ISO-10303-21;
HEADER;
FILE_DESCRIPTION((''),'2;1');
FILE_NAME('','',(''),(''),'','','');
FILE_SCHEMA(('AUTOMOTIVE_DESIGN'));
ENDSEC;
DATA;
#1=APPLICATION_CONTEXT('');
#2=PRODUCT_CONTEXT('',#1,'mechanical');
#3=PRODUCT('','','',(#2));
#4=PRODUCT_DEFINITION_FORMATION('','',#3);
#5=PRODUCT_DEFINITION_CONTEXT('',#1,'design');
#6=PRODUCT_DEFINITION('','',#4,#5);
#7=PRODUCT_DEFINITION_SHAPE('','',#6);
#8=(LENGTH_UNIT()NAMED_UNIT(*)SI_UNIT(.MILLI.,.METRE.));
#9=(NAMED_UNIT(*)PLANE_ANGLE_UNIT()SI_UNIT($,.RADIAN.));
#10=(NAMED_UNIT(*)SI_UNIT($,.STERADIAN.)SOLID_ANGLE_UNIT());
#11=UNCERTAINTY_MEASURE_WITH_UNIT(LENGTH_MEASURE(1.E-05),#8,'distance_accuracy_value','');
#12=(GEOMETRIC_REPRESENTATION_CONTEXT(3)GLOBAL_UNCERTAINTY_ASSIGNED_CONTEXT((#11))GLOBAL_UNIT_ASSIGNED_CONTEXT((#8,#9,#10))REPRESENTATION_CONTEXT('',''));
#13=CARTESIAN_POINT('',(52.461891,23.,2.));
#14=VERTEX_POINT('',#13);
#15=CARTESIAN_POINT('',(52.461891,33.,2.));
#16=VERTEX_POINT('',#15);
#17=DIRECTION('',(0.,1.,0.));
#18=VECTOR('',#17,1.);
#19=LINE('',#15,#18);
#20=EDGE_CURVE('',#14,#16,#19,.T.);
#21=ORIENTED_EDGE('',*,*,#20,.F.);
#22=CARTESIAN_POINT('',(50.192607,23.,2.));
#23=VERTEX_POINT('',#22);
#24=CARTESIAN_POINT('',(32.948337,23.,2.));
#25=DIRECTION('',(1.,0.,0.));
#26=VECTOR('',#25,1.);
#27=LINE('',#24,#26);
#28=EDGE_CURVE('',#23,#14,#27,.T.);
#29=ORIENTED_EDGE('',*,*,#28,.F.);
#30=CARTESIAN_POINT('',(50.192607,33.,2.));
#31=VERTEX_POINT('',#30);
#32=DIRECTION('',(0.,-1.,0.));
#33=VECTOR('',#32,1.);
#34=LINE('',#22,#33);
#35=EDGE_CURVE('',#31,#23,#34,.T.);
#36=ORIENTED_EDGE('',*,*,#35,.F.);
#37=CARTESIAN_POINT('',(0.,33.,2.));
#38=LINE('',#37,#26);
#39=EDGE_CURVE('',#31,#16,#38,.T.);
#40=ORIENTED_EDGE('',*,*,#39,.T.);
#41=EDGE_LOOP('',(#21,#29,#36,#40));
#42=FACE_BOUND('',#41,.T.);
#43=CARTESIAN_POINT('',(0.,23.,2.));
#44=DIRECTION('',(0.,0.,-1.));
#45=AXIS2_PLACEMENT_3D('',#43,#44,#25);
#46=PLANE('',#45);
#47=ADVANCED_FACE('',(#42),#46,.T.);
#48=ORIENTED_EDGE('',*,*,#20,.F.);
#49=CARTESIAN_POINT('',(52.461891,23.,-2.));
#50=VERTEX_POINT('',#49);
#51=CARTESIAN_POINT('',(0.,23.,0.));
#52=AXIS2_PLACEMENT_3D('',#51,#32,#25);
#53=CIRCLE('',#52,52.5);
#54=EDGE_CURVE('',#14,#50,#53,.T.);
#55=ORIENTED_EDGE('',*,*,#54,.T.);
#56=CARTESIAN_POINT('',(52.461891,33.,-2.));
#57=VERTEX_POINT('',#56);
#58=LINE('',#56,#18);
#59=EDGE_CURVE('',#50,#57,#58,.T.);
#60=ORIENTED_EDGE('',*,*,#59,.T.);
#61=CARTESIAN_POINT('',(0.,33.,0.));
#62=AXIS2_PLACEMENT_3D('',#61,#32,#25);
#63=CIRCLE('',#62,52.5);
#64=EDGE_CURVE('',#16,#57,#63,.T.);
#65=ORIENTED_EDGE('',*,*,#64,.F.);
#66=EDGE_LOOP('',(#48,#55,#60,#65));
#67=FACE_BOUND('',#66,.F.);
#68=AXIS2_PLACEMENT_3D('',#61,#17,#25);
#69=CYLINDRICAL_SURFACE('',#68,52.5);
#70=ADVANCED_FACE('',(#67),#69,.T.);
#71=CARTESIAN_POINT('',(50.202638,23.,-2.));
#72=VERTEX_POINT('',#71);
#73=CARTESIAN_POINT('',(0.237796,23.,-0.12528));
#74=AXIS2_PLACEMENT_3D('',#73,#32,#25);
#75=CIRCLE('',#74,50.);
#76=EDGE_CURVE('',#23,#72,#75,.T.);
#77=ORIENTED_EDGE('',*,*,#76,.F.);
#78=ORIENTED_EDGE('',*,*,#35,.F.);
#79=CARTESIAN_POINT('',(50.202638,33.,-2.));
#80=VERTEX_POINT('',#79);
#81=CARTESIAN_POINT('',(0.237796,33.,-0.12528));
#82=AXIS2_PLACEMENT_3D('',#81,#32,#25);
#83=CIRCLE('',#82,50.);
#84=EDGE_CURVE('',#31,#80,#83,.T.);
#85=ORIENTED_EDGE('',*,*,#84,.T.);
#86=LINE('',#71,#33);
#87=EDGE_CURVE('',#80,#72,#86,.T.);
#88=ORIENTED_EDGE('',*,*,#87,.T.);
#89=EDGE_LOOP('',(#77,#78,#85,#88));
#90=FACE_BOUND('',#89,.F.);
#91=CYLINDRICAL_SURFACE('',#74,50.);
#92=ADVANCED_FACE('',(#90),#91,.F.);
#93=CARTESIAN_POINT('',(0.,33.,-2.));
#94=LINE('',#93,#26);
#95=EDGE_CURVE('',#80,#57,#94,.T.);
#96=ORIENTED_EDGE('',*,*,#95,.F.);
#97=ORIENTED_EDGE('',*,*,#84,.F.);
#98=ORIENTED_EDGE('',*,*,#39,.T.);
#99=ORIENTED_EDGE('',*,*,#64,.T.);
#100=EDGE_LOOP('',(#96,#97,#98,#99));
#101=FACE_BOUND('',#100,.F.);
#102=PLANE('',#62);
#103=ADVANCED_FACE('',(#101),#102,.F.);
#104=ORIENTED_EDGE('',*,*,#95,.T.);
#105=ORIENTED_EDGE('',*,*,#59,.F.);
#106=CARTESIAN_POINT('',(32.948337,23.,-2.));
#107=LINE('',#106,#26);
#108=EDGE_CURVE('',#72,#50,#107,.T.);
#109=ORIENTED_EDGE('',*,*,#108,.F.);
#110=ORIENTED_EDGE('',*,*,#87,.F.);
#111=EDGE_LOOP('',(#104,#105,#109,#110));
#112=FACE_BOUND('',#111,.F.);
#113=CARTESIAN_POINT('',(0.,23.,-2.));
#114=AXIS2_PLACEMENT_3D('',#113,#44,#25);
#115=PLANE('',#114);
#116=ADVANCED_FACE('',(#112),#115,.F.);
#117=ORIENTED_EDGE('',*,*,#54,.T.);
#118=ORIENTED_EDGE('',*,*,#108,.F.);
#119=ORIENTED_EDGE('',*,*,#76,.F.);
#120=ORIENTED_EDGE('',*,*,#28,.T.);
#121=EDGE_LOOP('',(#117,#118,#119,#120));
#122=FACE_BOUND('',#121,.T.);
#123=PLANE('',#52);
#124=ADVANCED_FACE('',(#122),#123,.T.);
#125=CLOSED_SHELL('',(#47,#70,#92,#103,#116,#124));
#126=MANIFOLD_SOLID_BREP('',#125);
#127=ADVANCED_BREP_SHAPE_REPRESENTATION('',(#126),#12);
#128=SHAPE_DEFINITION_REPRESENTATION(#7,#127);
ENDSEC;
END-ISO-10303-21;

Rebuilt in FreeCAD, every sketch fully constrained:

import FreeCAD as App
import Part
import Sketcher


def add_polygon(sketch, points):
    """Adds a closed chain of lines whose ends are joined by coincident constraints."""
    first, n = sketch.GeometryCount, len(points)
    for a, b in zip(points, points[1:] + points[:1]):
        sketch.addGeometry(Part.LineSegment(App.Vector(*a, 0), App.Vector(*b, 0)), False)
    for i in range(n):
        sketch.addConstraint(Sketcher.Constraint("Coincident", first + i, 2, first + (i + 1) % n, 1))

doc = App.newDocument("Part")
body = doc.addObject("PartDesign::Body", "Body")

sketch1 = body.newObject("Sketcher::SketchObject", "Sketch")
sketch1.AttachmentSupport = (doc.getObject("XZ_Plane"), [""])
sketch1.MapMode = "FlatFace"
sketch1.addGeometry(Part.Circle(App.Vector(0, 0, 0), App.Vector(0, 0, 1), 52), False)
sketch1.addConstraint(Sketcher.Constraint("Coincident", 0, 3, -1, 1))
sketch1.addConstraint(Sketcher.Constraint("Diameter", 0, 105.0))
pad1 = body.newObject("PartDesign::Pad", "Pad")
pad1.Profile = sketch1
pad1.Length = 10

sketch2 = body.newObject("Sketcher::SketchObject", "Sketch001")
sketch2.AttachmentSupport = (doc.getObject("XZ_Plane"), [""])
sketch2.MapMode = "FlatFace"
sketch2.AttachmentOffset = App.Placement(App.Vector(0, 0, 10), App.Rotation())
sketch2.addGeometry(Part.Circle(App.Vector(0, 0, 0), App.Vector(0, 0, 1), 50), False)
sketch2.addConstraint(Sketcher.Constraint("Diameter", 0, 100.0))
sketch2.addConstraint(Sketcher.Constraint("DistanceY", 0, 3, -1, 1, 0.12528))
sketch2.addConstraint(Sketcher.Constraint("DistanceX", -1, 1, 0, 3, 0.237796))
pocket1 = body.newObject("PartDesign::Pocket", "Pocket")
pocket1.Profile = sketch2
pocket1.Length = 25

sketch3 = body.newObject("Sketcher::SketchObject", "Sketch002")
sketch3.AttachmentSupport = (doc.getObject("XZ_Plane"), [""])
sketch3.MapMode = "FlatFace"
sketch3.AttachmentOffset = App.Placement(App.Vector(0, 0, 10), App.Rotation())
add_polygon(sketch3, [(0, 2), (0, -2), (65.9, -2), (65.9, 2)])
sketch3.addConstraint(Sketcher.Constraint("Vertical", 0))
sketch3.addConstraint(Sketcher.Constraint("Horizontal", 1))
sketch3.addConstraint(Sketcher.Constraint("Vertical", 2))
sketch3.addConstraint(Sketcher.Constraint("Horizontal", 3))
sketch3.addConstraint(Sketcher.Constraint("Symmetric", 0, 2, 3, 2, -1, 1))
sketch3.addConstraint(Sketcher.Constraint("DistanceY", 0, 2, 0, 1, 4.0))
sketch3.addConstraint(Sketcher.Constraint("DistanceX", 1, 1, 1, 2, 65.896674))
pocket2 = body.newObject("PartDesign::Pocket", "Pocket001")
pocket2.Profile = sketch3
pocket2.Length = 21
body2 = doc.addObject("PartDesign::Body", "Body001")
doc.recompute()

body.Placement = App.Placement(App.Vector(0, 33, 0), App.Rotation(App.Vector(0, 0, 1), 0))
boolean = body2.newObject("PartDesign::Boolean", "Boolean")
boolean.Type = "Fuse"
boolean.addObjects([body])

doc.recompute()
